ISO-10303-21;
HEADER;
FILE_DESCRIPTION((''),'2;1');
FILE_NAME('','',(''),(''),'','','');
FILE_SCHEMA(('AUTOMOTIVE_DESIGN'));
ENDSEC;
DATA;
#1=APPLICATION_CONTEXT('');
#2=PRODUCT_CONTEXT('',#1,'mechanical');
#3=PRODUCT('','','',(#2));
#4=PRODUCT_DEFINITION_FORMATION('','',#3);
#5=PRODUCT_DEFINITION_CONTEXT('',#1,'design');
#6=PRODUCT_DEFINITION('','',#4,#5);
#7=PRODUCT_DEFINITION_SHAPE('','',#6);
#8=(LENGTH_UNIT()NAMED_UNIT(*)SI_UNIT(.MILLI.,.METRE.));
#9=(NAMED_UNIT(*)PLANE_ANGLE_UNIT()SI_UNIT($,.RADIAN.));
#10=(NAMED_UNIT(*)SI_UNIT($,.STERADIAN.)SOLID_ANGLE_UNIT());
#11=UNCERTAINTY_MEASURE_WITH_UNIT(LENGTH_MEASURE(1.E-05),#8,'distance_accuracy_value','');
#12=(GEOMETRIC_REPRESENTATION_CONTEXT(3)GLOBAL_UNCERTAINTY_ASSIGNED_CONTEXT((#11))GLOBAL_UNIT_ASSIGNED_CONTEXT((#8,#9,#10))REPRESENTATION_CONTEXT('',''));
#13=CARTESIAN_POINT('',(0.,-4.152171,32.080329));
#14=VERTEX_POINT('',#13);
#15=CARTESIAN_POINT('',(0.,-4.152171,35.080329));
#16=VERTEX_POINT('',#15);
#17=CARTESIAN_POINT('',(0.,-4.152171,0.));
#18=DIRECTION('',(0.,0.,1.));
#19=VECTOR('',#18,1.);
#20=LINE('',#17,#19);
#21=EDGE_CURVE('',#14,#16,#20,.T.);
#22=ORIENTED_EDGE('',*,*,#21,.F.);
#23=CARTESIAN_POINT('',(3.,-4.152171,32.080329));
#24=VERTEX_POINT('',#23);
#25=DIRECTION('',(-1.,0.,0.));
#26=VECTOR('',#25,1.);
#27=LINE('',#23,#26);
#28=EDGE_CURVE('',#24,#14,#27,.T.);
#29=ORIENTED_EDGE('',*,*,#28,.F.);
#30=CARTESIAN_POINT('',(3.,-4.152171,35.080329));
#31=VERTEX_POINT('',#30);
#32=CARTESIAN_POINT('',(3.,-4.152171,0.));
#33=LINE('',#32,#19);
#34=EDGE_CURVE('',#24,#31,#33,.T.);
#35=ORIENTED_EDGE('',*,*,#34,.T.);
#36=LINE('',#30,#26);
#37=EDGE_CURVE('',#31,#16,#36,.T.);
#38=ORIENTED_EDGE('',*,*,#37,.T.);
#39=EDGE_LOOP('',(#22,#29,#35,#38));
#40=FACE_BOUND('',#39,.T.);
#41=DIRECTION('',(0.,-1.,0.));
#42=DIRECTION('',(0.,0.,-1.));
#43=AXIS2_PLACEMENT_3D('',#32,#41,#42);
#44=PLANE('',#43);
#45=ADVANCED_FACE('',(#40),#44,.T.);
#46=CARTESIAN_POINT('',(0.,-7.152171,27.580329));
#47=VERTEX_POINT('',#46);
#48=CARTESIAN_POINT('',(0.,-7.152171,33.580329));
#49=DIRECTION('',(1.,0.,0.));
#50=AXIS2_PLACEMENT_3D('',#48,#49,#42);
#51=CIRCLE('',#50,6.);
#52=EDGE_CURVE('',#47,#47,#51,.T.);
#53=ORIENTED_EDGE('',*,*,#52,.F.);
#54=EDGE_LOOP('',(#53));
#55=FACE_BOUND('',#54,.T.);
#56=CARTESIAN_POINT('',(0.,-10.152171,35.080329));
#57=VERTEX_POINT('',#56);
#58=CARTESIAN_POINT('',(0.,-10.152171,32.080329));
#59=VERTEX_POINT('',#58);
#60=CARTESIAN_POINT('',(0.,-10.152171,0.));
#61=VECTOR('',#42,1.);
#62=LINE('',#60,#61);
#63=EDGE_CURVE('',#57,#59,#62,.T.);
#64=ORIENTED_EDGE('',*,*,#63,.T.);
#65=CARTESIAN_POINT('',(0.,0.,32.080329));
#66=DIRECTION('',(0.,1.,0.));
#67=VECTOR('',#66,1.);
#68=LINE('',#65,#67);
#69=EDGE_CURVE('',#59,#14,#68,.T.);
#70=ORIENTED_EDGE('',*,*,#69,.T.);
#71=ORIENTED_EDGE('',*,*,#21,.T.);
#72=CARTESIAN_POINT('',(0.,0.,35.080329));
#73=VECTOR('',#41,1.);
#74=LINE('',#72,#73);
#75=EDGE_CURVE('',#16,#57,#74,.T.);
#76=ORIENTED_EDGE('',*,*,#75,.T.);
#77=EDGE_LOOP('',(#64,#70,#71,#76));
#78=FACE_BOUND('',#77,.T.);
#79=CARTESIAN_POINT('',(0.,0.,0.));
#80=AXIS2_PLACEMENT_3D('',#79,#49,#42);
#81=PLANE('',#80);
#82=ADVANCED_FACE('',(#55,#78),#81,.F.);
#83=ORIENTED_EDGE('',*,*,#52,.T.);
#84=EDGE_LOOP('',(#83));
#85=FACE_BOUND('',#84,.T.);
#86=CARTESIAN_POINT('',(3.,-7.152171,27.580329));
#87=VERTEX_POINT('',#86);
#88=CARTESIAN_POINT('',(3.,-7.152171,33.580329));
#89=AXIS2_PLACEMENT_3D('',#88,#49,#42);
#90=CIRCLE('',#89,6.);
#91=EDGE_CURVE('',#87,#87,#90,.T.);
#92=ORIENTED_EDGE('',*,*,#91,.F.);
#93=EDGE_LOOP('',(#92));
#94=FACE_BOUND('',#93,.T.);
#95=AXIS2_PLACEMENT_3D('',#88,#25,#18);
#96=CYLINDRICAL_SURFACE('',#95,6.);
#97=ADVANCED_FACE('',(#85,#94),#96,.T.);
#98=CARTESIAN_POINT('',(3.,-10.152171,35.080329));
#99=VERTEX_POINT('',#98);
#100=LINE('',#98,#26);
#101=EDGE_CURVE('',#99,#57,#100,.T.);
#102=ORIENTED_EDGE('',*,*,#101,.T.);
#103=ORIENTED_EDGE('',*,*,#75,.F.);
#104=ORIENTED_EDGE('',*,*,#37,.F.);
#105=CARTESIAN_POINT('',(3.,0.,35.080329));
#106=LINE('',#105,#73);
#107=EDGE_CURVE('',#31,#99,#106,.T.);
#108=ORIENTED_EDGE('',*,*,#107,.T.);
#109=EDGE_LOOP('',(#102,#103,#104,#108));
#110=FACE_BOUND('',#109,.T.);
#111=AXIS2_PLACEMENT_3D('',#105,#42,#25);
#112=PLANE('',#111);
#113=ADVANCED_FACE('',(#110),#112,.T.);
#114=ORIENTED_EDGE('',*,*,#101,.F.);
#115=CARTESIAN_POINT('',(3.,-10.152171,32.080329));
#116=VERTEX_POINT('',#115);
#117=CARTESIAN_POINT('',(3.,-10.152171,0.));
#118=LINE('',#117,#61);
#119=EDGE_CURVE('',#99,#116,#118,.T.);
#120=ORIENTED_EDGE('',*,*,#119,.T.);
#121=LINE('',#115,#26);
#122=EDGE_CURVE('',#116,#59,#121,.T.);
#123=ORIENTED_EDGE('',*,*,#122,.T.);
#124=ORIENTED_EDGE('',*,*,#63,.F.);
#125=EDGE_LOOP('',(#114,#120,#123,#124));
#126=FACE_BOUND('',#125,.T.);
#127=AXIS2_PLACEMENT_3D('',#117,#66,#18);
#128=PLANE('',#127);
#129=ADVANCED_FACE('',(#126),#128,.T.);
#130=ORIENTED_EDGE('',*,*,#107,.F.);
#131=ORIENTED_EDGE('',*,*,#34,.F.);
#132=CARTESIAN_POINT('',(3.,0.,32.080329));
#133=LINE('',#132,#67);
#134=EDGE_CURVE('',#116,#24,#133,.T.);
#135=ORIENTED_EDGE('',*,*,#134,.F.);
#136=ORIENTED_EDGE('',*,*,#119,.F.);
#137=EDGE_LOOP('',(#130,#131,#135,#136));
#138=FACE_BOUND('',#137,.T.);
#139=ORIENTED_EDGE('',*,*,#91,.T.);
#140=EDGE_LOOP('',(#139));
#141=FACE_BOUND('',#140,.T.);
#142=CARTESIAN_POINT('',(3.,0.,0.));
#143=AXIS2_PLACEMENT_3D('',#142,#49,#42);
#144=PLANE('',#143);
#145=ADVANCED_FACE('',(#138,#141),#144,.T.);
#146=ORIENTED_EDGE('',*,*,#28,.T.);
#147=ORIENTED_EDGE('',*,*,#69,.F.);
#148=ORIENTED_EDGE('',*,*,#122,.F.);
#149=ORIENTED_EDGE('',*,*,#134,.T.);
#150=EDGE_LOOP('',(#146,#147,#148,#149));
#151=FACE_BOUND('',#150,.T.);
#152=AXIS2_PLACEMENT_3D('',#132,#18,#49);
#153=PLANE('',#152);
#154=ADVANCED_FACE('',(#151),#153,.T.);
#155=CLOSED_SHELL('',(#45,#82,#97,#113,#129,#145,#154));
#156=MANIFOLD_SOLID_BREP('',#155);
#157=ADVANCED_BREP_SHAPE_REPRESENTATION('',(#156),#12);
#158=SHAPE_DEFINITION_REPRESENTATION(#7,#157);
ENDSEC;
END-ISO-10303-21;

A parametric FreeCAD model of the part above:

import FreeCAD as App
import Part
import Sketcher
from FreeCAD import Vector
Q = App.Units.Quantity

doc = App.newDocument("Part")
body = doc.addObject("PartDesign::Body", "Body")

# Sketch on YZ plane
sketch1 = body.newObject("Sketcher::SketchObject", "Sketch")
sketch1.AttachmentSupport = (doc.getObject("YZ_Plane"), [""])
sketch1.MapMode = "FlatFace"
sketch1.addGeometry(Part.Circle(Vector(-7.2, 33.6, 0), Vector(0, 0, 1), 6), False)
sketch1.addGeometry(Part.LineSegment(Vector(-10.2, 35.1, 0), Vector(-4.2, 35.1, 0)), False)
sketch1.addGeometry(Part.LineSegment(Vector(-4.2, 35.1, 0), Vector(-4.2, 32.1, 0)), False)
sketch1.addGeometry(Part.LineSegment(Vector(-4.2, 32.1, 0), Vector(-10.2, 32.1, 0)), False)
sketch1.addGeometry(Part.LineSegment(Vector(-10.2, 32.1, 0), Vector(-10.2, 35.1, 0)), False)
sketch1.addConstraint(Sketcher.Constraint("Coincident", 1, 2, 2, 1))
sketch1.addConstraint(Sketcher.Constraint("Coincident", 2, 2, 3, 1))
sketch1.addConstraint(Sketcher.Constraint("Coincident", 3, 2, 4, 1))
sketch1.addConstraint(Sketcher.Constraint("Coincident", 4, 2, 1, 1))
sketch1.addConstraint(Sketcher.Constraint("Horizontal", 1))
sketch1.addConstraint(Sketcher.Constraint("Vertical", 2))
sketch1.addConstraint(Sketcher.Constraint("Horizontal", 3))
sketch1.addConstraint(Sketcher.Constraint("Vertical", 4))
sketch1.addConstraint(Sketcher.Constraint("Diameter", 0, Q("12 mm")))
sketch1.addConstraint(Sketcher.Constraint("DistanceX", 1, 1, 1, 2, Q("6 mm")))
sketch1.addConstraint(Sketcher.Constraint("DistanceY", 2, 2, 2, 1, Q("3 mm")))
sketch1.addConstraint(Sketcher.Constraint("DistanceX", 0, 3, 1, 2, Q("3 mm")))
sketch1.addConstraint(Sketcher.Constraint("DistanceY", 0, 3, 1, 2, Q("1.5 mm")))
sketch1.addConstraint(Sketcher.Constraint("DistanceX", 0, 3, -1, 1, Q("7.152171 mm")))
sketch1.addConstraint(Sketcher.Constraint("DistanceY", -1, 1, 0, 3, Q("33.580329 mm")))
pad1 = body.newObject("PartDesign::Pad", "Pad")
pad1.Profile = sketch1
pad1.Length = 3

doc.recompute()
